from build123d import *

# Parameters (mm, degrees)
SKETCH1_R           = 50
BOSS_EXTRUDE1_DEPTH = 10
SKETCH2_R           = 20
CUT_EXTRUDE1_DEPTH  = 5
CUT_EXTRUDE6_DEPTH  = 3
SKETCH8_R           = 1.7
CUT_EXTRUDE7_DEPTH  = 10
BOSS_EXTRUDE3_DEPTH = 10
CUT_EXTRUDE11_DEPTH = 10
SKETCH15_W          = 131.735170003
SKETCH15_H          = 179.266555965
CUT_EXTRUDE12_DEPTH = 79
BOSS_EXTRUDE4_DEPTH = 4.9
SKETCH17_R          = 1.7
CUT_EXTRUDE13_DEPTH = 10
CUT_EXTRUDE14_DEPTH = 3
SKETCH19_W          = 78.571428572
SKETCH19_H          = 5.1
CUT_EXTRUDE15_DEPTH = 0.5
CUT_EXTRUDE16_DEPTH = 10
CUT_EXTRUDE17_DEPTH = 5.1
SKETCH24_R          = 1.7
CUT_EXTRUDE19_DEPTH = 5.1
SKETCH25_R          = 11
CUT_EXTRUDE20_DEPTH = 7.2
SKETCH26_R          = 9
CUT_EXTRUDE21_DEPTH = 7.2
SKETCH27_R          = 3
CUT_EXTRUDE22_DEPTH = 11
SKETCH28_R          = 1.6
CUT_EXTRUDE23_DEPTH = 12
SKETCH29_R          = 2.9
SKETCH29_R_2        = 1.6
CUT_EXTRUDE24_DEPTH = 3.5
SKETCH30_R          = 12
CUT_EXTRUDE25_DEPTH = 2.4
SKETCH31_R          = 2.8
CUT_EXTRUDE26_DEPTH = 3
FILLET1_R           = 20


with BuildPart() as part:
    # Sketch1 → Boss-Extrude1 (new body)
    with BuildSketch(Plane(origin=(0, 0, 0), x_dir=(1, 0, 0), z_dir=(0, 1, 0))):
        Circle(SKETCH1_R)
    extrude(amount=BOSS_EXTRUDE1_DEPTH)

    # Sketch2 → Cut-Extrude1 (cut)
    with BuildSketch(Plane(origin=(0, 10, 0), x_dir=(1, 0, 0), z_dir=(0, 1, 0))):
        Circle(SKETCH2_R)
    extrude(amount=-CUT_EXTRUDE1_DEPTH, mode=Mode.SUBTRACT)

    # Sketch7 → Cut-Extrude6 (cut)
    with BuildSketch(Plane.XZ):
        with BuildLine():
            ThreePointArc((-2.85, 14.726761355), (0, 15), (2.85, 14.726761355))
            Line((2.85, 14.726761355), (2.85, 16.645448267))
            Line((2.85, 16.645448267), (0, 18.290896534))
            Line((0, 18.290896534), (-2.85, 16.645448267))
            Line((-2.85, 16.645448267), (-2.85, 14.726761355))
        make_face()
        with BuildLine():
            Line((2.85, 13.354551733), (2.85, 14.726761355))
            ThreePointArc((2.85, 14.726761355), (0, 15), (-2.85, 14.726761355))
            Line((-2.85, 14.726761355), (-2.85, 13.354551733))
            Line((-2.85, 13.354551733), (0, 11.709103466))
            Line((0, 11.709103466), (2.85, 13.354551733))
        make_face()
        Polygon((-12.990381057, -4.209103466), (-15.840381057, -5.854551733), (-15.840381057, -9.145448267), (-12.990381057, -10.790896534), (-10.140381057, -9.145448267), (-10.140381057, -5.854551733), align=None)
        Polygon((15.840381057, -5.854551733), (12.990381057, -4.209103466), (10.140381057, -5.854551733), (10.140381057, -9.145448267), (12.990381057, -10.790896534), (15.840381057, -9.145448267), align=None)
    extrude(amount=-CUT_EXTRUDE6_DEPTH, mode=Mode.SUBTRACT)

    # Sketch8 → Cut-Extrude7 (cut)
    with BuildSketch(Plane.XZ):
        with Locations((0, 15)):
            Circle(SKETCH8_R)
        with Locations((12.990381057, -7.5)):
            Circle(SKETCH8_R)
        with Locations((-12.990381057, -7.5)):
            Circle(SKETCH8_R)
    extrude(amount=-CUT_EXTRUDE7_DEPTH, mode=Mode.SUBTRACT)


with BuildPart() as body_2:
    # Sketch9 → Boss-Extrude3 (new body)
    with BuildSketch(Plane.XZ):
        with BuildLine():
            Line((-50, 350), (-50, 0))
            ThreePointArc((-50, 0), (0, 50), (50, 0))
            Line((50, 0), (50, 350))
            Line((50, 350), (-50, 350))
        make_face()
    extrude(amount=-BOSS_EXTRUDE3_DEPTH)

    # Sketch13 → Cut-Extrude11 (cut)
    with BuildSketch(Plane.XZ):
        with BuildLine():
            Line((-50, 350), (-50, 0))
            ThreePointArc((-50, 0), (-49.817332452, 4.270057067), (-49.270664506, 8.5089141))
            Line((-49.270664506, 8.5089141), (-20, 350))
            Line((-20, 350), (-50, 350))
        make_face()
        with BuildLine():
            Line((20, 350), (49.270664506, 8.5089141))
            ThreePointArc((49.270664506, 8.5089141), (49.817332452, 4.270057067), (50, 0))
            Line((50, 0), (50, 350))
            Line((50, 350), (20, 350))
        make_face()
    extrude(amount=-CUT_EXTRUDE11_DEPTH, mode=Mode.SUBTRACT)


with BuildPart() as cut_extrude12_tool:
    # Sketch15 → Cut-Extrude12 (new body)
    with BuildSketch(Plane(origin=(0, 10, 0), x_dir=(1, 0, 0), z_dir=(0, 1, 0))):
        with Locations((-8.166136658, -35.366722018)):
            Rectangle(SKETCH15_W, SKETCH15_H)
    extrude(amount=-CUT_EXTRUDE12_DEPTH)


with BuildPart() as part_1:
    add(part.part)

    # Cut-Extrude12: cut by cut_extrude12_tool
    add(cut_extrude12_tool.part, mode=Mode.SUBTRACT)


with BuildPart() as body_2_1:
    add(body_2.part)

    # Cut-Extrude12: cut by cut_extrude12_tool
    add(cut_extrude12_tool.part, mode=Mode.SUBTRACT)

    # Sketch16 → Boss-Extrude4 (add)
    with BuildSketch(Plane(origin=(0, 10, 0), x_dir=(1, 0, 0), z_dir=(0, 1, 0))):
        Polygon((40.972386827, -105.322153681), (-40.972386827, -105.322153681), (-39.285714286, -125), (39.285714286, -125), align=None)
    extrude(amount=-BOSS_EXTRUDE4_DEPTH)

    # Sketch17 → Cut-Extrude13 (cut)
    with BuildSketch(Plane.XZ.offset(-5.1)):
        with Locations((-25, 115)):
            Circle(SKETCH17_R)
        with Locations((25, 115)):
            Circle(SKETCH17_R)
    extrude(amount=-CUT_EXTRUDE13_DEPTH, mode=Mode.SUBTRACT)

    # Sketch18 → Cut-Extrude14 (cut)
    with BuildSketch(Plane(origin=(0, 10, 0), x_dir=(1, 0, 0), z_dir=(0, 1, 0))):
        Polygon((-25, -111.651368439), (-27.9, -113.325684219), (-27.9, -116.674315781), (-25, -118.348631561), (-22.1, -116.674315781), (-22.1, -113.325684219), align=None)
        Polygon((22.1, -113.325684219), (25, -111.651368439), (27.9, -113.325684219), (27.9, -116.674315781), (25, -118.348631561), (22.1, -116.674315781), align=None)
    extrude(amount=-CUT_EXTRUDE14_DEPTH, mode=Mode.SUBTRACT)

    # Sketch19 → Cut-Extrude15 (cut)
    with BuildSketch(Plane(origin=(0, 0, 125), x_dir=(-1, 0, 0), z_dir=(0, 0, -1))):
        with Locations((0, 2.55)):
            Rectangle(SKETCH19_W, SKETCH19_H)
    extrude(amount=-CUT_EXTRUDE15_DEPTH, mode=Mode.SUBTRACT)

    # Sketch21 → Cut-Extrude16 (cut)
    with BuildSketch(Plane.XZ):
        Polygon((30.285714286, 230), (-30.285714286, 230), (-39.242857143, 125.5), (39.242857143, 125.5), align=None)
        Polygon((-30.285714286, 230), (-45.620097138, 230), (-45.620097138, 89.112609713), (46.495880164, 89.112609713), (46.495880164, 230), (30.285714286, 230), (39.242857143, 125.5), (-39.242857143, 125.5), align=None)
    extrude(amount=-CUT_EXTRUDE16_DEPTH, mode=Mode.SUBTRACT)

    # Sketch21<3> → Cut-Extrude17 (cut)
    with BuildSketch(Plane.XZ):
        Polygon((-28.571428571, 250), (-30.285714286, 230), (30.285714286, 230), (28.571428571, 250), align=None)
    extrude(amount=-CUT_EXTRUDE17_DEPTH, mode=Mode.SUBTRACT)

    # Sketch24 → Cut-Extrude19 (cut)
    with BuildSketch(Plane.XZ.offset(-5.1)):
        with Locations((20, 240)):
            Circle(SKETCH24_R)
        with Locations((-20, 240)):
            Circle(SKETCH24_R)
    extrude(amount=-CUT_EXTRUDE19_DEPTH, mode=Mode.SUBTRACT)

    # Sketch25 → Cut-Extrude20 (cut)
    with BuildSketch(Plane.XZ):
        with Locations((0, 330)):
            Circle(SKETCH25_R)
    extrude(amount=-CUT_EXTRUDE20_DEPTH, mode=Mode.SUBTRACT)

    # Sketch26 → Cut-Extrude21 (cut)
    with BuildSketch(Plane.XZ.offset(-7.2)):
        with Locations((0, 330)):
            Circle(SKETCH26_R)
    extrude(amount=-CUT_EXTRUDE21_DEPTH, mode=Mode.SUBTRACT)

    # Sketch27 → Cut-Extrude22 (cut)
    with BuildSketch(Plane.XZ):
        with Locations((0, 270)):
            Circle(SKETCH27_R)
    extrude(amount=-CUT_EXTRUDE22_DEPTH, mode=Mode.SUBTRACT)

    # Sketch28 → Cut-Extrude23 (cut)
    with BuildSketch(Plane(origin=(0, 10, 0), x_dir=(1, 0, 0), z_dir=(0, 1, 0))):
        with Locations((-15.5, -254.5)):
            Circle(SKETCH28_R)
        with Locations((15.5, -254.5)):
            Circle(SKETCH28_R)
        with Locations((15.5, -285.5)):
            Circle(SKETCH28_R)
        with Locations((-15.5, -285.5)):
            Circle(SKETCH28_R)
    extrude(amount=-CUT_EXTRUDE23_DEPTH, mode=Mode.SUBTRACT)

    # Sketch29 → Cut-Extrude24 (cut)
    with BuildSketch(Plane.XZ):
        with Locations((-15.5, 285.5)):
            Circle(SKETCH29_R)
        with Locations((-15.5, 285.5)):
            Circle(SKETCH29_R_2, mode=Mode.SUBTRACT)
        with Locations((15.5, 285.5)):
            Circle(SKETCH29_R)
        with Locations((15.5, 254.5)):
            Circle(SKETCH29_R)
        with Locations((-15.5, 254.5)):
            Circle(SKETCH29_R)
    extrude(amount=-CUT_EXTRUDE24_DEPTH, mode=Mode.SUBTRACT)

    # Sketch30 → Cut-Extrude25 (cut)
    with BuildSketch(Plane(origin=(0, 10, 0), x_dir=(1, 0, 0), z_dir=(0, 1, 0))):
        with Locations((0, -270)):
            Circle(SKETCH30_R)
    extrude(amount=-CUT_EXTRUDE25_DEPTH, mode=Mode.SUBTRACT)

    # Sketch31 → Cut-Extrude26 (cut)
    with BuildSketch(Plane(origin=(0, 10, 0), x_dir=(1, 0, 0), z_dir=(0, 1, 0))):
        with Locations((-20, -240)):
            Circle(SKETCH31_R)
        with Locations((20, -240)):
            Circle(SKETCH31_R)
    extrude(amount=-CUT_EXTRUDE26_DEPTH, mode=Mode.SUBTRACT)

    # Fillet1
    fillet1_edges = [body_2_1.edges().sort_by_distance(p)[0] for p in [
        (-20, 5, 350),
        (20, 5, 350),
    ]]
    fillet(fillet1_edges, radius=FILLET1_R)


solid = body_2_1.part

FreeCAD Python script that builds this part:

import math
import FreeCAD as App
import Part
import Sketcher
from FreeCAD import Vector
Q = App.Units.Quantity


def edges_at(feature, points):
    """Names of the edges that pass closest to the given points."""
    edges = feature.Shape.Edges
    near = lambda p: min(range(len(edges)), key=lambda i: edges[i].distToShape(Part.Vertex(*p))[0])
    return sorted({f"Edge{near(p) + 1}" for p in points})

doc = App.newDocument("Part")
body = doc.addObject("PartDesign::Body", "Body")

# Sketch on XZ plane
sketch1 = body.newObject("Sketcher::SketchObject", "Sketch")
sketch1.AttachmentSupport = (doc.getObject("XZ_Plane"), [""])
sketch1.MapMode = "FlatFace"
sketch1.addGeometry(Part.Circle(Vector(0, 0, 0), Vector(0, 0, 1), 50), False)
sketch1.addConstraint(Sketcher.Constraint("Coincident", 0, 3, -1, 1))
sketch1.addConstraint(Sketcher.Constraint("Diameter", 0, Q("100 mm")))
pad1 = body.newObject("PartDesign::Pad", "Pad")
pad1.Profile = sketch1
pad1.Length = 10
pad1.Reversed = True

# Sketch on XZ plane
sketch2 = body.newObject("Sketcher::SketchObject", "Sketch001")
sketch2.AttachmentSupport = (doc.getObject("XZ_Plane"), [""])
sketch2.MapMode = "FlatFace"
sketch2.AttachmentOffset = App.Placement(Vector(0, 0, -10), App.Rotation())
sketch2.addGeometry(Part.Circle(Vector(0, 0, 0), Vector(0, 0, 1), 20), False)
sketch2.addConstraint(Sketcher.Constraint("Coincident", 0, 3, -1, 1))
sketch2.addConstraint(Sketcher.Constraint("Diameter", 0, Q("40 mm")))
pocket1 = body.newObject("PartDesign::Pocket", "Pocket")
pocket1.Profile = sketch2
pocket1.Length = 5
pocket1.Reversed = True

# Sketch on XZ plane
sketch3 = body.newObject("Sketcher::SketchObject", "Sketch002")
sketch3.AttachmentSupport = (doc.getObject("XZ_Plane"), [""])
sketch3.MapMode = "FlatFace"
sketch3.addGeometry(Part.LineSegment(Vector(2.9, 16.6, 0), Vector(0, 18.3, 0)), False)
sketch3.addGeometry(Part.LineSegment(Vector(0, 18.3, 0), Vector(-2.9, 16.6, 0)), False)
sketch3.addGeometry(Part.LineSegment(Vector(-2.9, 16.6, 0), Vector(-2.9, 13.4, 0)), False)
sketch3.addGeometry(Part.LineSegment(Vector(-2.9, 13.4, 0), Vector(0, 11.7, 0)), False)
sketch3.addGeometry(Part.LineSegment(Vector(0, 11.7, 0), Vector(2.9, 13.4, 0)), False)
sketch3.addGeometry(Part.LineSegment(Vector(2.9, 13.4, 0), Vector(2.9, 16.6, 0)), False)
sketch3.addGeometry(Part.LineSegment(Vector(-13, -4.2, 0), Vector(-15.8, -5.9, 0)), False)
sketch3.addGeometry(Part.LineSegment(Vector(-15.8, -5.9, 0), Vector(-15.8, -9.1, 0)), False)
sketch3.addGeometry(Part.LineSegment(Vector(-15.8, -9.1, 0), Vector(-13, -10.8, 0)), False)
sketch3.addGeometry(Part.LineSegment(Vector(-13, -10.8, 0), Vector(-10.1, -9.1, 0)), False)
sketch3.addGeometry(Part.LineSegment(Vector(-10.1, -9.1, 0), Vector(-10.1, -5.9, 0)), False)
sketch3.addGeometry(Part.LineSegment(Vector(-10.1, -5.9, 0), Vector(-13, -4.2, 0)), False)
sketch3.addGeometry(Part.LineSegment(Vector(15.8, -5.9, 0), Vector(13, -4.2, 0)), False)
sketch3.addGeometry(Part.LineSegment(Vector(13, -4.2, 0), Vector(10.1, -5.9, 0)), False)
sketch3.addGeometry(Part.LineSegment(Vector(10.1, -5.9, 0), Vector(10.1, -9.1, 0)), False)
sketch3.addGeometry(Part.LineSegment(Vector(10.1, -9.1, 0), Vector(13, -10.8, 0)), False)
sketch3.addGeometry(Part.LineSegment(Vector(13, -10.8, 0), Vector(15.8, -9.1, 0)), False)
sketch3.addGeometry(Part.LineSegment(Vector(15.8, -9.1, 0), Vector(15.8, -5.9, 0)), False)
sketch3.addConstraint(Sketcher.Constraint("Coincident", 0, 2, 1, 1))
sketch3.addConstraint(Sketcher.Constraint("Coincident", 1, 2, 2, 1))
sketch3.addConstraint(Sketcher.Constraint("Coincident", 2, 2, 3, 1))
sketch3.addConstraint(Sketcher.Constraint("Coincident", 3, 2, 4, 1))
sketch3.addConstraint(Sketcher.Constraint("Coincident", 4, 2, 5, 1))
sketch3.addConstraint(Sketcher.Constraint("Coincident", 5, 2, 0, 1))
sketch3.addConstraint(Sketcher.Constraint("Coincident", 6, 2, 7, 1))
sketch3.addConstraint(Sketcher.Constraint("Coincident", 7, 2, 8, 1))
sketch3.addConstraint(Sketcher.Constraint("Coincident", 8, 2, 9, 1))
sketch3.addConstraint(Sketcher.Constraint("Coincident", 9, 2, 10, 1))
sketch3.addConstraint(Sketcher.Constraint("Coincident", 10, 2, 11, 1))
sketch3.addConstraint(Sketcher.Constraint("Coincident", 11, 2, 6, 1))
sketch3.addConstraint(Sketcher.Constraint("Coincident", 12, 2, 13, 1))
sketch3.addConstraint(Sketcher.Constraint("Coincident", 13, 2, 14, 1))
sketch3.addConstraint(Sketcher.Constraint("Coincident", 14, 2, 15, 1))
sketch3.addConstraint(Sketcher.Constraint("Coincident", 15, 2, 16, 1))
sketch3.addConstraint(Sketcher.Constraint("Coincident", 16, 2, 17, 1))
sketch3.addConstraint(Sketcher.Constraint("Coincident", 17, 2, 12, 1))
sketch3.addConstraint(Sketcher.Constraint("Vertical", 2))
sketch3.addConstraint(Sketcher.Constraint("Vertical", 5))
sketch3.addConstraint(Sketcher.Constraint("Vertical", 7))
sketch3.addConstraint(Sketcher.Constraint("Vertical", 10))
sketch3.addConstraint(Sketcher.Constraint("Vertical", 14))
sketch3.addConstraint(Sketcher.Constraint("Vertical", 17))
sketch3.addConstraint(Sketcher.Constraint("Symmetric", 2, 2, 4, 2, -2))
sketch3.addConstraint(Sketcher.Constraint("Symmetric", 11, 2, 12, 2, -2))
sketch3.addConstraint(Sketcher.Constraint("Symmetric", 10, 2, 13, 2, -2))
sketch3.addConstraint(Sketcher.Constraint("Symmetric", 8, 2, 15, 2, -2))
sketch3.addConstraint(Sketcher.Constraint("Symmetric", 7, 2, 16, 2, -2))
sketch3.addConstraint(Sketcher.Constraint("PointOnObject", 0, 2, -2))
sketch3.addConstraint(Sketcher.Constraint("PointOnObject", 3, 2, -2))
sketch3.addConstraint(Sketcher.Constraint("Parallel", 0, 3))
sketch3.addConstraint(Sketcher.Constraint("Parallel", 1, 4))
sketch3.addConstraint(Sketcher.Constraint("Parallel", 4, 6))
sketch3.addConstraint(Sketcher.Constraint("Parallel", 3, 8))
sketch3.addConstraint(Sketcher.Constraint("Parallel", 6, 9))
sketch3.addConstraint(Sketcher.Constraint("Parallel", 8, 11))
sketch3.addConstraint(Sketcher.Constraint("Parallel", 11, 12))
sketch3.addConstraint(Sketcher.Constraint("Parallel", 12, 15))
sketch3.addConstraint(Sketcher.Constraint("Horizontal", 7, 2, 9, 2))
sketch3.addConstraint(Sketcher.Constraint("Horizontal", 6, 2, 10, 2))
sketch3.addConstraint(Sketcher.Constraint("Equal", 5, 7))
sketch3.addConstraint(Sketcher.Constraint("Equal", 4, 6))
sketch3.addConstraint(Sketcher.Constraint("Angle", 0, Q("150 deg")))
sketch3.addConstraint(Sketcher.Constraint("DistanceX", 2, 2, 4, 2, Q("5.7 mm")))
sketch3.addConstraint(Sketcher.Constraint("DistanceY", 6, 2, 1, 2, Q("22.5 mm")))
sketch3.addConstraint(Sketcher.Constraint("DistanceY", 2, 2, 2, 1, Q("3.290897 mm")))
sketch3.addConstraint(Sketcher.Constraint("DistanceY", -1, 1, 1, 2, Q("16.645448 mm")))
sketch3.addConstraint(Sketcher.Constraint("DistanceX", 6, 2, -1, 1, Q("15.840381 mm")))
pocket2 = body.newObject("PartDesign::Pocket", "Pocket001")
pocket2.Profile = sketch3
pocket2.Length = 3

# Sketch on XZ plane
sketch4 = body.newObject("Sketcher::SketchObject", "Sketch003")
sketch4.AttachmentSupport = (doc.getObject("XZ_Plane"), [""])
sketch4.MapMode = "FlatFace"
sketch4.addGeometry(Part.Circle(Vector(0, 15, 0), Vector(0, 0, 1), 1.7), False)
sketch4.addGeometry(Part.Circle(Vector(13, -7.5, 0), Vector(0, 0, 1), 1.7), False)
sketch4.addGeometry(Part.Circle(Vector(-13, -7.5, 0), Vector(0, 0, 1), 1.7), False)
sketch4.addConstraint(Sketcher.Constraint("Equal", 0, 1))
sketch4.addConstraint(Sketcher.Constraint("Equal", 1, 2))
sketch4.addConstraint(Sketcher.Constraint("Symmetric", 1, 3, 2, 3, -2))
sketch4.addConstraint(Sketcher.Constraint("PointOnObject", 0, 3, -2))
sketch4.addConstraint(Sketcher.Constraint("Diameter", 0, Q("3.4 mm")))
sketch4.addConstraint(Sketcher.Constraint("DistanceY", -1, 1, 0, 3, Q("15 mm")))
sketch4.addConstraint(Sketcher.Constraint("DistanceY", 1, 3, -1, 1, Q("7.5 mm")))
sketch4.addConstraint(Sketcher.Constraint("DistanceX", -1, 1, 1, 3, Q("12.990381 mm")))
pocket3 = body.newObject("PartDesign::Pocket", "Pocket002")
pocket3.Profile = sketch4
pocket3.Length = 10
body2 = doc.addObject("PartDesign::Body", "Body001")

# Sketch on XZ plane
sketch5 = body2.newObject("Sketcher::SketchObject", "Sketch004")
sketch5.AttachmentSupport = (doc.getObject("XZ_Plane001"), [""])
sketch5.MapMode = "FlatFace"
sketch5.addGeometry(Part.LineSegment(Vector(-50, 350, 0), Vector(-50, 0, 0)), False)
sketch5.addGeometry(Part.ArcOfCircle(Part.Circle(Vector(0, 0, 0), Vector(0, 0, 1), 50), math.radians(0), math.radians(180)), False)
sketch5.addGeometry(Part.LineSegment(Vector(50, 0, 0), Vector(50, 350, 0)), False)
sketch5.addGeometry(Part.LineSegment(Vector(50, 350, 0), Vector(-50, 350, 0)), False)
sketch5.addConstraint(Sketcher.Constraint("Tangent", 0, 2, 1, 2))
sketch5.addConstraint(Sketcher.Constraint("Tangent", 1, 1, 2, 1))
sketch5.addConstraint(Sketcher.Constraint("Coincident", 2, 2, 3, 1))
sketch5.addConstraint(Sketcher.Constraint("Coincident", 3, 2, 0, 1))
sketch5.addConstraint(Sketcher.Constraint("Vertical", 0))
sketch5.addConstraint(Sketcher.Constraint("Vertical", 2))
sketch5.addConstraint(Sketcher.Constraint("Horizontal", 3))
sketch5.addConstraint(Sketcher.Constraint("Coincident", 1, 3, -1, 1))
sketch5.addConstraint(Sketcher.Constraint("Radius", 1, Q("50 mm")))
sketch5.addConstraint(Sketcher.Constraint("DistanceY", 0, 2, 0, 1, Q("350 mm")))
pad2 = body2.newObject("PartDesign::Pad", "Pad001")
pad2.Profile = sketch5
pad2.Length = 10
pad2.Reversed = True

# Sketch on XZ plane
sketch6 = body2.newObject("Sketcher::SketchObject", "Sketch005")
sketch6.AttachmentSupport = (doc.getObject("XZ_Plane001"), [""])
sketch6.MapMode = "FlatFace"
sketch6.addGeometry(Part.LineSegment(Vector(-50, 350, 0), Vector(-50, 0, 0)), False)
sketch6.addGeometry(Part.ArcOfCircle(Part.Circle(Vector(0, 0, 0), Vector(0, 0, 1), 50), math.radians(170.2), math.radians(180)), False)
sketch6.addGeometry(Part.LineSegment(Vector(-49, 9, 0), Vector(-20, 350, 0)), False)
sketch6.addGeometry(Part.LineSegment(Vector(-20, 350, 0), Vector(-50, 350, 0)), False)
sketch6.addGeometry(Part.LineSegment(Vector(20, 350, 0), Vector(49, 9, 0)), False)
sketch6.addGeometry(Part.ArcOfCircle(Part.Circle(Vector(0, 0, 0), Vector(0, 0, 1), 50), math.radians(0), math.radians(9.8)), False)
sketch6.addGeometry(Part.LineSegment(Vector(50, 0, 0), Vector(50, 350, 0)), False)
sketch6.addGeometry(Part.LineSegment(Vector(50, 350, 0), Vector(20, 350, 0)), False)
sketch6.addConstraint(Sketcher.Constraint("Tangent", 0, 2, 1, 2))
sketch6.addConstraint(Sketcher.Constraint("Coincident", 1, 1, 2, 1))
sketch6.addConstraint(Sketcher.Constraint("Coincident", 2, 2, 3, 1))
sketch6.addConstraint(Sketcher.Constraint("Coincident", 3, 2, 0, 1))
sketch6.addConstraint(Sketcher.Constraint("Coincident", 4, 2, 5, 2))
sketch6.addConstraint(Sketcher.Constraint("Tangent", 5, 1, 6, 1))
sketch6.addConstraint(Sketcher.Constraint("Coincident", 6, 2, 7, 1))
sketch6.addConstraint(Sketcher.Constraint("Coincident", 7, 2, 4, 1))
sketch6.addConstraint(Sketcher.Constraint("Vertical", 0))
sketch6.addConstraint(Sketcher.Constraint("Horizontal", 3))
sketch6.addConstraint(Sketcher.Constraint("Vertical", 6))
sketch6.addConstraint(Sketcher.Constraint("Horizontal", 7))
sketch6.addConstraint(Sketcher.Constraint("Coincident", 1, 3, -1, 1))
sketch6.addConstraint(Sketcher.Constraint("Coincident", 5, 3, -1, 1))
sketch6.addConstraint(Sketcher.Constraint("Equal", 1, 5))
sketch6.addConstraint(Sketcher.Constraint("Symmetric", 2, 2, 7, 2, -2))
sketch6.addConstraint(Sketcher.Constraint("Horizontal", 1, 1, 4, 2))
sketch6.addConstraint(Sketcher.Constraint("Radius", 1, Q("50 mm")))
sketch6.addConstraint(Sketcher.Constraint("DistanceX", 3, 2, 3, 1, Q("30 mm")))
sketch6.addConstraint(Sketcher.Constraint("DistanceY", 0, 2, 0, 1, Q("350 mm")))
sketch6.addConstraint(Sketcher.Constraint("DistanceX", 1, 1, 4, 2, Q("98.541329 mm")))
pocket4 = body2.newObject("PartDesign::Pocket", "Pocket003")
pocket4.Profile = sketch6
pocket4.Length = 10
body3 = doc.addObject("PartDesign::Body", "Body002")

# Sketch on XZ plane
sketch7 = body3.newObject("Sketcher::SketchObject", "Sketch006")
sketch7.AttachmentSupport = (doc.getObject("XZ_Plane002"), [""])
sketch7.MapMode = "FlatFace"
sketch7.AttachmentOffset = App.Placement(Vector(0, 0, -10), App.Rotation())
sketch7.addGeometry(Part.LineSegment(Vector(-74, -54, 0), Vector(-74, 125, 0)), False)
sketch7.addGeometry(Part.LineSegment(Vector(-74, 125, 0), Vector(58, 125, 0)), False)
sketch7.addGeometry(Part.LineSegment(Vector(58, 125, 0), Vector(58, -54, 0)), False)
sketch7.addGeometry(Part.LineSegment(Vector(58, -54, 0), Vector(-74, -54, 0)), False)
sketch7.addConstraint(Sketcher.Constraint("Coincident", 0, 2, 1, 1))
sketch7.addConstraint(Sketcher.Constraint("Coincident", 1, 2, 2, 1))
sketch7.addConstraint(Sketcher.Constraint("Coincident", 2, 2, 3, 1))
sketch7.addConstraint(Sketcher.Constraint("Coincident", 3, 2, 0, 1))
sketch7.addConstraint(Sketcher.Constraint("Vertical", 0))
sketch7.addConstraint(Sketcher.Constraint("Horizontal", 1))
sketch7.addConstraint(Sketcher.Constraint("Vertical", 2))
sketch7.addConstraint(Sketcher.Constraint("Horizontal", 3))
sketch7.addConstraint(Sketcher.Constraint("DistanceY", -1, 1, 0, 2, Q("125 mm")))
sketch7.addConstraint(Sketcher.Constraint("DistanceX", 1, 1, 1, 2, Q("131.73517 mm")))
sketch7.addConstraint(Sketcher.Constraint("DistanceY", 0, 1, 0, 2, Q("179.266556 mm")))
sketch7.addConstraint(Sketcher.Constraint("DistanceX", 0, 2, -1, 1, Q("74.033722 mm")))
pad3 = body3.newObject("PartDesign::Pad", "Pad002")
pad3.Profile = sketch7
pad3.Length = 79
doc.recompute()

body4 = doc.addObject("PartDesign::Body", "Body003")
body4.BaseFeature = body3
boolean = body.newObject("PartDesign::Boolean", "Boolean")
boolean.Type = "Cut"
boolean.addObjects([body4])
doc.recompute()

boolean2 = body2.newObject("PartDesign::Boolean", "Boolean001")
boolean2.Type = "Cut"
boolean2.addObjects([body3])

# Sketch on XZ plane
sketch8 = body2.newObject("Sketcher::SketchObject", "Sketch007")
sketch8.AttachmentSupport = (doc.getObject("XZ_Plane001"), [""])
sketch8.MapMode = "FlatFace"
sketch8.AttachmentOffset = App.Placement(Vector(0, 0, -10), App.Rotation())
sketch8.addGeometry(Part.LineSegment(Vector(41, 105, 0), Vector(-41, 105, 0)), False)
sketch8.addGeometry(Part.LineSegment(Vector(-41, 105, 0), Vector(-39, 125, 0)), False)
sketch8.addGeometry(Part.LineSegment(Vector(-39, 125, 0), Vector(39, 125, 0)), False)
sketch8.addGeometry(Part.LineSegment(Vector(39, 125, 0), Vector(41, 105, 0)), False)
sketch8.addConstraint(Sketcher.Constraint("Coincident", 0, 2, 1, 1))
sketch8.addConstraint(Sketcher.Constraint("Coincident", 1, 2, 2, 1))
sketch8.addConstraint(Sketcher.Constraint("Coincident", 2, 2, 3, 1))
sketch8.addConstraint(Sketcher.Constraint("Coincident", 3, 2, 0, 1))
sketch8.addConstraint(Sketcher.Constraint("Horizontal", 0))
sketch8.addConstraint(Sketcher.Constraint("Horizontal", 2))
sketch8.addConstraint(Sketcher.Constraint("Equal", 1, 3))
sketch8.addConstraint(Sketcher.Constraint("DistanceY", -1, 1, 1, 2, Q("125 mm")))
sketch8.addConstraint(Sketcher.Constraint("Distance", 1, Q("19.75 mm")))
sketch8.addConstraint(Sketcher.Constraint("DistanceX", 2, 1, 2, 2, Q("78.571429 mm")))
sketch8.addConstraint(Sketcher.Constraint("DistanceX", 0, 2, 2, 2, Q("80.258101 mm")))
sketch8.addConstraint(Sketcher.Constraint("DistanceX", 0, 2, -1, 1, Q("40.972387 mm")))
pad4 = body2.newObject("PartDesign::Pad", "Pad003")
pad4.Profile = sketch8
pad4.Length = 4.9

# Sketch on XZ plane
sketch9 = body2.newObject("Sketcher::SketchObject", "Sketch008")
sketch9.AttachmentSupport = (doc.getObject("XZ_Plane001"), [""])
sketch9.MapMode = "FlatFace"
sketch9.AttachmentOffset = App.Placement(Vector(0, 0, -5.1), App.Rotation())
sketch9.addGeometry(Part.Circle(Vector(-25, 115, 0), Vector(0, 0, 1), 1.7), False)
sketch9.addGeometry(Part.Circle(Vector(25, 115, 0), Vector(0, 0, 1), 1.7), False)
sketch9.addConstraint(Sketcher.Constraint("Equal", 0, 1))
sketch9.addConstraint(Sketcher.Constraint("Symmetric", 0, 3, 1, 3, -2))
sketch9.addConstraint(Sketcher.Constraint("Diameter", 0, Q("3.4 mm")))
sketch9.addConstraint(Sketcher.Constraint("DistanceX", 0, 3, -1, 1, Q("25 mm")))
sketch9.addConstraint(Sketcher.Constraint("DistanceY", -1, 1, 0, 3, Q("115 mm")))
pocket5 = body2.newObject("PartDesign::Pocket", "Pocket004")
pocket5.Profile = sketch9
pocket5.Length = 10

# Sketch on XZ plane
sketch10 = body2.newObject("Sketcher::SketchObject", "Sketch009")
sketch10.AttachmentSupport = (doc.getObject("XZ_Plane001"), [""])
sketch10.MapMode = "FlatFace"
sketch10.AttachmentOffset = App.Placement(Vector(0, 0, -10), App.Rotation())
sketch10.addGeometry(Part.LineSegment(Vector(-25, 111.7, 0), Vector(-27.9, 113.3, 0)), False)
sketch10.addGeometry(Part.LineSegment(Vector(-27.9, 113.3, 0), Vector(-27.9, 116.7, 0)), False)
sketch10.addGeometry(Part.LineSegment(Vector(-27.9, 116.7, 0), Vector(-25, 118.3, 0)), False)
sketch10.addGeometry(Part.LineSegment(Vector(-25, 118.3, 0), Vector(-22.1, 116.7, 0)), False)
sketch10.addGeometry(Part.LineSegment(Vector(-22.1, 116.7, 0), Vector(-22.1, 113.3, 0)), False)
sketch10.addGeometry(Part.LineSegment(Vector(-22.1, 113.3, 0), Vector(-25, 111.7, 0)), False)
sketch10.addGeometry(Part.LineSegment(Vector(25, 111.7, 0), Vector(22.1, 113.3, 0)), False)
sketch10.addGeometry(Part.LineSegment(Vector(22.1, 113.3, 0), Vector(22.1, 116.7, 0)), False)
sketch10.addGeometry(Part.LineSegment(Vector(22.1, 116.7, 0), Vector(25, 118.3, 0)), False)
sketch10.addGeometry(Part.LineSegment(Vector(25, 118.3, 0), Vector(27.9, 116.7, 0)), False)
sketch10.addGeometry(Part.LineSegment(Vector(27.9, 116.7, 0), Vector(27.9, 113.3, 0)), False)
sketch10.addGeometry(Part.LineSegment(Vector(27.9, 113.3, 0), Vector(25, 111.7, 0)), False)
sketch10.addConstraint(Sketcher.Constraint("Coincident", 0, 2, 1, 1))
sketch10.addConstraint(Sketcher.Constraint("Coincident", 1, 2, 2, 1))
sketch10.addConstraint(Sketcher.Constraint("Coincident", 2, 2, 3, 1))
sketch10.addConstraint(Sketcher.Constraint("Coincident", 3, 2, 4, 1))
sketch10.addConstraint(Sketcher.Constraint("Coincident", 4, 2, 5, 1))
sketch10.addConstraint(Sketcher.Constraint("Coincident", 5, 2, 0, 1))
sketch10.addConstraint(Sketcher.Constraint("Coincident", 6, 2, 7, 1))
sketch10.addConstraint(Sketcher.Constraint("Coincident", 7, 2, 8, 1))
sketch10.addConstraint(Sketcher.Constraint("Coincident", 8, 2, 9, 1))
sketch10.addConstraint(Sketcher.Constraint("Coincident", 9, 2, 10, 1))
sketch10.addConstraint(Sketcher.Constraint("Coincident", 10, 2, 11, 1))
sketch10.addConstraint(Sketcher.Constraint("Coincident", 11, 2, 6, 1))
sketch10.addConstraint(Sketcher.Constraint("Vertical", 1))
sketch10.addConstraint(Sketcher.Constraint("Vertical", 4))
sketch10.addConstraint(Sketcher.Constraint("Vertical", 7))
sketch10.addConstraint(Sketcher.Constraint("Vertical", 10))
sketch10.addConstraint(Sketcher.Constraint("Symmetric", 4, 2, 6, 2, -2))
sketch10.addConstraint(Sketcher.Constraint("Symmetric", 2, 2, 8, 2, -2))
sketch10.addConstraint(Sketcher.Constraint("Symmetric", 1, 2, 9, 2, -2))
sketch10.addConstraint(Sketcher.Constraint("Symmetric", 5, 2, 11, 2, -2))
sketch10.addConstraint(Sketcher.Constraint("Parallel", 0, 3))
sketch10.addConstraint(Sketcher.Constraint("Parallel", 2, 5))
sketch10.addConstraint(Sketcher.Constraint("Parallel", 3, 6))
sketch10.addConstraint(Sketcher.Constraint("Parallel", 5, 8))
sketch10.addConstraint(Sketcher.Constraint("Parallel", 8, 11))
sketch10.addConstraint(Sketcher.Constraint("Horizontal", 1, 2, 3, 2))
sketch10.addConstraint(Sketcher.Constraint("Horizontal", 0, 2, 4, 2))
sketch10.addConstraint(Sketcher.Constraint("Angle", 0, Q("150 deg")))
sketch10.addConstraint(Sketcher.Constraint("DistanceX", 2, 2, -1, 1, Q("25 mm")))
sketch10.addConstraint(Sketcher.Constraint("DistanceX", 0, 2, -1, 1, Q("27.9 mm")))
sketch10.addConstraint(Sketcher.Constraint("DistanceY", 1, 1, 1, 2, Q("3.348632 mm")))
sketch10.addConstraint(Sketcher.Constraint("DistanceY", -1, 1, 2, 2, Q("118.348632 mm")))
pocket6 = body2.newObject("PartDesign::Pocket", "Pocket005")
pocket6.Profile = sketch10
pocket6.Length = 3
pocket6.Reversed = True

# Sketch on XY plane
sketch11 = body2.newObject("Sketcher::SketchObject", "Sketch010")
sketch11.AttachmentSupport = (doc.getObject("XY_Plane001"), [""])
sketch11.MapMode = "FlatFace"
sketch11.AttachmentOffset = App.Placement(Vector(0, 0, 125), App.Rotation())
sketch11.addGeometry(Part.LineSegment(Vector(39, 5, 0), Vector(39, 0, 0)), False)
sketch11.addGeometry(Part.LineSegment(Vector(39, 0, 0), Vector(-39, 0, 0)), False)
sketch11.addGeometry(Part.LineSegment(Vector(-39, 0, 0), Vector(-39, 5, 0)), False)
sketch11.addGeometry(Part.LineSegment(Vector(-39, 5, 0), Vector(39, 5, 0)), False)
sketch11.addConstraint(Sketcher.Constraint("Coincident", 0, 2, 1, 1))
sketch11.addConstraint(Sketcher.Constraint("Coincident", 1, 2, 2, 1))
sketch11.addConstraint(Sketcher.Constraint("Coincident", 2, 2, 3, 1))
sketch11.addConstraint(Sketcher.Constraint("Coincident", 3, 2, 0, 1))
sketch11.addConstraint(Sketcher.Constraint("Vertical", 0))
sketch11.addConstraint(Sketcher.Constraint("Horizontal", 1))
sketch11.addConstraint(Sketcher.Constraint("Vertical", 2))
sketch11.addConstraint(Sketcher.Constraint("Horizontal", 3))
sketch11.addConstraint(Sketcher.Constraint("Symmetric", 0, 2, 1, 2, -1, 1))
sketch11.addConstraint(Sketcher.Constraint("DistanceY", 0, 2, 0, 1, Q("5.1 mm")))
sketch11.addConstraint(Sketcher.Constraint("DistanceX", 1, 2, 1, 1, Q("78.571429 mm")))
pocket7 = body2.newObject("PartDesign::Pocket", "Pocket006")
pocket7.Profile = sketch11
pocket7.Length = 0.5
pocket7.Reversed = True

# Sketch on XZ plane
sketch12 = body2.newObject("Sketcher::SketchObject", "Sketch011")
sketch12.AttachmentSupport = (doc.getObject("XZ_Plane001"), [""])
sketch12.MapMode = "FlatFace"
sketch12.addGeometry(Part.LineSegment(Vector(-46, 230, 0), Vector(-46, 89, 0)), False)
sketch12.addGeometry(Part.LineSegment(Vector(-46, 89, 0), Vector(46, 89, 0)), False)
sketch12.addGeometry(Part.LineSegment(Vector(46, 89, 0), Vector(46, 230, 0)), False)
sketch12.addGeometry(Part.LineSegment(Vector(46, 230, 0), Vector(-46, 230, 0)), False)
sketch12.addConstraint(Sketcher.Constraint("Coincident", 0, 2, 1, 1))
sketch12.addConstraint(Sketcher.Constraint("Coincident", 1, 2, 2, 1))
sketch12.addConstraint(Sketcher.Constraint("Coincident", 2, 2, 3, 1))
sketch12.addConstraint(Sketcher.Constraint("Coincident", 3, 2, 0, 1))
sketch12.addConstraint(Sketcher.Constraint("Vertical", 0))
sketch12.addConstraint(Sketcher.Constraint("Horizontal", 1))
sketch12.addConstraint(Sketcher.Constraint("Vertical", 2))
sketch12.addConstraint(Sketcher.Constraint("Horizontal", 3))
sketch12.addConstraint(Sketcher.Constraint("DistanceY", -1, 1, 2, 2, Q("230 mm")))
sketch12.addConstraint(Sketcher.Constraint("DistanceY", 0, 2, 0, 1, Q("140.88739 mm")))
sketch12.addConstraint(Sketcher.Constraint("DistanceX", 1, 1, 1, 2, Q("92.115977 mm")))
sketch12.addConstraint(Sketcher.Constraint("DistanceX", -1, 1, 1, 2, Q("46.49588 mm")))
pocket8 = body2.newObject("PartDesign::Pocket", "Pocket007")
pocket8.Profile = sketch12
pocket8.Length = 10

# Sketch on XZ plane
sketch13 = body2.newObject("Sketcher::SketchObject", "Sketch012")
sketch13.AttachmentSupport = (doc.getObject("XZ_Plane001"), [""])
sketch13.MapMode = "FlatFace"
sketch13.addGeometry(Part.LineSegment(Vector(-29, 250, 0), Vector(-30, 230, 0)), False)
sketch13.addGeometry(Part.LineSegment(Vector(-30, 230, 0), Vector(30, 230, 0)), False)
sketch13.addGeometry(Part.LineSegment(Vector(30, 230, 0), Vector(29, 250, 0)), False)
sketch13.addGeometry(Part.LineSegment(Vector(29, 250, 0), Vector(-29, 250, 0)), False)
sketch13.addConstraint(Sketcher.Constraint("Coincident", 0, 2, 1, 1))
sketch13.addConstraint(Sketcher.Constraint("Coincident", 1, 2, 2, 1))
sketch13.addConstraint(Sketcher.Constraint("Coincident", 2, 2, 3, 1))
sketch13.addConstraint(Sketcher.Constraint("Coincident", 3, 2, 0, 1))
sketch13.addConstraint(Sketcher.Constraint("Horizontal", 1))
sketch13.addConstraint(Sketcher.Constraint("Horizontal", 3))
sketch13.addConstraint(Sketcher.Constraint("Equal", 0, 2))
sketch13.addConstraint(Sketcher.Constraint("DistanceY", -1, 1, 0, 2, Q("230 mm")))
sketch13.addConstraint(Sketcher.Constraint("DistanceY", -1, 1, 2, 2, Q("250 mm")))
sketch13.addConstraint(Sketcher.Constraint("DistanceX", 1, 1, 1, 2, Q("60.571429 mm")))
sketch13.addConstraint(Sketcher.Constraint("DistanceX", 3, 2, 3, 1, Q("57.142857 mm")))
sketch13.addConstraint(Sketcher.Constraint("DistanceX", -1, 1, 2, 2, Q("28.571429 mm")))
pocket9 = body2.newObject("PartDesign::Pocket", "Pocket008")
pocket9.Profile = sketch13
pocket9.Length = 5.1

# Sketch on XZ plane
sketch14 = body2.newObject("Sketcher::SketchObject", "Sketch013")
sketch14.AttachmentSupport = (doc.getObject("XZ_Plane001"), [""])
sketch14.MapMode = "FlatFace"
sketch14.AttachmentOffset = App.Placement(Vector(0, 0, -5.1), App.Rotation())
sketch14.addGeometry(Part.Circle(Vector(20, 240, 0), Vector(0, 0, 1), 1.7), False)
sketch14.addGeometry(Part.Circle(Vector(-20, 240, 0), Vector(0, 0, 1), 1.7), False)
sketch14.addConstraint(Sketcher.Constraint("Equal", 0, 1))
sketch14.addConstraint(Sketcher.Constraint("Symmetric", 0, 3, 1, 3, -2))
sketch14.addConstraint(Sketcher.Constraint("Diameter", 0, Q("3.4 mm")))
sketch14.addConstraint(Sketcher.Constraint("DistanceX", -1, 1, 0, 3, Q("20 mm")))
sketch14.addConstraint(Sketcher.Constraint("DistanceY", -1, 1, 0, 3, Q("240 mm")))
pocket10 = body2.newObject("PartDesign::Pocket", "Pocket009")
pocket10.Profile = sketch14
pocket10.Length = 5.1

# Sketch on XZ plane
sketch15 = body2.newObject("Sketcher::SketchObject", "Sketch014")
sketch15.AttachmentSupport = (doc.getObject("XZ_Plane001"), [""])
sketch15.MapMode = "FlatFace"
sketch15.addGeometry(Part.Circle(Vector(0, 330, 0), Vector(0, 0, 1), 11), False)
sketch15.addConstraint(Sketcher.Constraint("PointOnObject", 0, 3, -2))
sketch15.addConstraint(Sketcher.Constraint("Diameter", 0, Q("22 mm")))
sketch15.addConstraint(Sketcher.Constraint("DistanceY", -1, 1, 0, 3, Q("330 mm")))
pocket11 = body2.newObject("PartDesign::Pocket", "Pocket010")
pocket11.Profile = sketch15
pocket11.Length = 7.2

# Sketch on XZ plane
sketch16 = body2.newObject("Sketcher::SketchObject", "Sketch015")
sketch16.AttachmentSupport = (doc.getObject("XZ_Plane001"), [""])
sketch16.MapMode = "FlatFace"
sketch16.AttachmentOffset = App.Placement(Vector(0, 0, -7.2), App.Rotation())
sketch16.addGeometry(Part.Circle(Vector(0, 330, 0), Vector(0, 0, 1), 9), False)
sketch16.addConstraint(Sketcher.Constraint("PointOnObject", 0, 3, -2))
sketch16.addConstraint(Sketcher.Constraint("Diameter", 0, Q("18 mm")))
sketch16.addConstraint(Sketcher.Constraint("DistanceY", -1, 1, 0, 3, Q("330 mm")))
pocket12 = body2.newObject("PartDesign::Pocket", "Pocket011")
pocket12.Profile = sketch16
pocket12.Length = 7.2

# Sketch on XZ plane
sketch17 = body2.newObject("Sketcher::SketchObject", "Sketch016")
sketch17.AttachmentSupport = (doc.getObject("XZ_Plane001"), [""])
sketch17.MapMode = "FlatFace"
sketch17.addGeometry(Part.Circle(Vector(0, 270, 0), Vector(0, 0, 1), 3), False)
sketch17.addConstraint(Sketcher.Constraint("PointOnObject", 0, 3, -2))
sketch17.addConstraint(Sketcher.Constraint("Diameter", 0, Q("6 mm")))
sketch17.addConstraint(Sketcher.Constraint("DistanceY", -1, 1, 0, 3, Q("270 mm")))
pocket13 = body2.newObject("PartDesign::Pocket", "Pocket012")
pocket13.Profile = sketch17
pocket13.Length = 11

# Sketch on XZ plane
sketch18 = body2.newObject("Sketcher::SketchObject", "Sketch017")
sketch18.AttachmentSupport = (doc.getObject("XZ_Plane001"), [""])
sketch18.MapMode = "FlatFace"
sketch18.AttachmentOffset = App.Placement(Vector(0, 0, -10), App.Rotation())
sketch18.addGeometry(Part.Circle(Vector(-15.5, 254.5, 0), Vector(0, 0, 1), 1.6), False)
sketch18.addGeometry(Part.Circle(Vector(15.5, 254.5, 0), Vector(0, 0, 1), 1.6), False)
sketch18.addGeometry(Part.Circle(Vector(15.5, 285.5, 0), Vector(0, 0, 1), 1.6), False)
sketch18.addGeometry(Part.Circle(Vector(-15.5, 285.5, 0), Vector(0, 0, 1), 1.6), False)
sketch18.addConstraint(Sketcher.Constraint("Equal", 0, 1))
sketch18.addConstraint(Sketcher.Constraint("Equal", 1, 2))
sketch18.addConstraint(Sketcher.Constraint("Equal", 2, 3))
sketch18.addConstraint(Sketcher.Constraint("Symmetric", 0, 3, 1, 3, -2))
sketch18.addConstraint(Sketcher.Constraint("Symmetric", 2, 3, 3, 3, -2))
sketch18.addConstraint(Sketcher.Constraint("Vertical", 1, 3, 2, 3))
sketch18.addConstraint(Sketcher.Constraint("Diameter", 0, Q("3.2 mm")))
sketch18.addConstraint(Sketcher.Constraint("DistanceX", 0, 3, 1, 3, Q("31 mm")))
sketch18.addConstraint(Sketcher.Constraint("DistanceY", 1, 3, 2, 3, Q("31 mm")))
sketch18.addConstraint(Sketcher.Constraint("DistanceY", -1, 1, 0, 3, Q("254.5 mm")))
pocket14 = body2.newObject("PartDesign::Pocket", "Pocket013")
pocket14.Profile = sketch18
pocket14.Length = 12
pocket14.Reversed = True

# Sketch on XZ plane
sketch19 = body2.newObject("Sketcher::SketchObject", "Sketch018")
sketch19.AttachmentSupport = (doc.getObject("XZ_Plane001"), [""])
sketch19.MapMode = "FlatFace"
sketch19.addGeometry(Part.Circle(Vector(-15.5, 285.5, 0), Vector(0, 0, 1), 2.9), False)
sketch19.addGeometry(Part.Circle(Vector(-15.5, 285.5, 0), Vector(0, 0, 1), 1.6), False)
sketch19.addGeometry(Part.Circle(Vector(15.5, 285.5, 0), Vector(0, 0, 1), 2.9), False)
sketch19.addGeometry(Part.Circle(Vector(15.5, 254.5, 0), Vector(0, 0, 1), 2.9), False)
sketch19.addGeometry(Part.Circle(Vector(-15.5, 254.5, 0), Vector(0, 0, 1), 2.9), False)
sketch19.addConstraint(Sketcher.Constraint("Coincident", 1, 3, 0, 3))
sketch19.addConstraint(Sketcher.Constraint("Equal", 0, 2))
sketch19.addConstraint(Sketcher.Constraint("Equal", 2, 3))
sketch19.addConstraint(Sketcher.Constraint("Equal", 3, 4))
sketch19.addConstraint(Sketcher.Constraint("Symmetric", 0, 3, 2, 3, -2))
sketch19.addConstraint(Sketcher.Constraint("Symmetric", 3, 3, 4, 3, -2))
sketch19.addConstraint(Sketcher.Constraint("Vertical", 2, 3, 3, 3))
sketch19.addConstraint(Sketcher.Constraint("Diameter", 0, Q("5.8 mm")))
sketch19.addConstraint(Sketcher.Constraint("Diameter", 1, Q("3.2 mm")))
sketch19.addConstraint(Sketcher.Constraint("DistanceX", 0, 3, 2, 3, Q("31 mm")))
sketch19.addConstraint(Sketcher.Constraint("DistanceY", 3, 3, 2, 3, Q("31 mm")))
sketch19.addConstraint(Sketcher.Constraint("DistanceY", -1, 1, 0, 3, Q("285.5 mm")))
pocket15 = body2.newObject("PartDesign::Pocket", "Pocket014")
pocket15.Profile = sketch19
pocket15.Length = 3.5

# Sketch on XZ plane
sketch20 = body2.newObject("Sketcher::SketchObject", "Sketch019")
sketch20.AttachmentSupport = (doc.getObject("XZ_Plane001"), [""])
sketch20.MapMode = "FlatFace"
sketch20.AttachmentOffset = App.Placement(Vector(0, 0, -10), App.Rotation())
sketch20.addGeometry(Part.Circle(Vector(0, 270, 0), Vector(0, 0, 1), 12), False)
sketch20.addConstraint(Sketcher.Constraint("PointOnObject", 0, 3, -2))
sketch20.addConstraint(Sketcher.Constraint("Diameter", 0, Q("24 mm")))
sketch20.addConstraint(Sketcher.Constraint("DistanceY", -1, 1, 0, 3, Q("270 mm")))
pocket16 = body2.newObject("PartDesign::Pocket", "Pocket015")
pocket16.Profile = sketch20
pocket16.Length = 2.4
pocket16.Reversed = True

# Sketch on XZ plane
sketch21 = body2.newObject("Sketcher::SketchObject", "Sketch020")
sketch21.AttachmentSupport = (doc.getObject("XZ_Plane001"), [""])
sketch21.MapMode = "FlatFace"
sketch21.AttachmentOffset = App.Placement(Vector(0, 0, -10), App.Rotation())
sketch21.addGeometry(Part.Circle(Vector(-20, 240, 0), Vector(0, 0, 1), 2.8), False)
sketch21.addGeometry(Part.Circle(Vector(20, 240, 0), Vector(0, 0, 1), 2.8), False)
sketch21.addConstraint(Sketcher.Constraint("Equal", 0, 1))
sketch21.addConstraint(Sketcher.Constraint("Symmetric", 0, 3, 1, 3, -2))
sketch21.addConstraint(Sketcher.Constraint("Diameter", 0, Q("5.6 mm")))
sketch21.addConstraint(Sketcher.Constraint("DistanceX", 0, 3, -1, 1, Q("20 mm")))
sketch21.addConstraint(Sketcher.Constraint("DistanceY", -1, 1, 0, 3, Q("240 mm")))
pocket17 = body2.newObject("PartDesign::Pocket", "Pocket016")
pocket17.Profile = sketch21
pocket17.Length = 3
pocket17.Reversed = True
doc.recompute()

fillet = body2.newObject("PartDesign::Fillet", "Fillet")
fillet.Base = (pocket17, edges_at(pocket17, [(-20, 5, 350), (20, 5, 350)]))
fillet.Radius = 20

doc.recompute()
